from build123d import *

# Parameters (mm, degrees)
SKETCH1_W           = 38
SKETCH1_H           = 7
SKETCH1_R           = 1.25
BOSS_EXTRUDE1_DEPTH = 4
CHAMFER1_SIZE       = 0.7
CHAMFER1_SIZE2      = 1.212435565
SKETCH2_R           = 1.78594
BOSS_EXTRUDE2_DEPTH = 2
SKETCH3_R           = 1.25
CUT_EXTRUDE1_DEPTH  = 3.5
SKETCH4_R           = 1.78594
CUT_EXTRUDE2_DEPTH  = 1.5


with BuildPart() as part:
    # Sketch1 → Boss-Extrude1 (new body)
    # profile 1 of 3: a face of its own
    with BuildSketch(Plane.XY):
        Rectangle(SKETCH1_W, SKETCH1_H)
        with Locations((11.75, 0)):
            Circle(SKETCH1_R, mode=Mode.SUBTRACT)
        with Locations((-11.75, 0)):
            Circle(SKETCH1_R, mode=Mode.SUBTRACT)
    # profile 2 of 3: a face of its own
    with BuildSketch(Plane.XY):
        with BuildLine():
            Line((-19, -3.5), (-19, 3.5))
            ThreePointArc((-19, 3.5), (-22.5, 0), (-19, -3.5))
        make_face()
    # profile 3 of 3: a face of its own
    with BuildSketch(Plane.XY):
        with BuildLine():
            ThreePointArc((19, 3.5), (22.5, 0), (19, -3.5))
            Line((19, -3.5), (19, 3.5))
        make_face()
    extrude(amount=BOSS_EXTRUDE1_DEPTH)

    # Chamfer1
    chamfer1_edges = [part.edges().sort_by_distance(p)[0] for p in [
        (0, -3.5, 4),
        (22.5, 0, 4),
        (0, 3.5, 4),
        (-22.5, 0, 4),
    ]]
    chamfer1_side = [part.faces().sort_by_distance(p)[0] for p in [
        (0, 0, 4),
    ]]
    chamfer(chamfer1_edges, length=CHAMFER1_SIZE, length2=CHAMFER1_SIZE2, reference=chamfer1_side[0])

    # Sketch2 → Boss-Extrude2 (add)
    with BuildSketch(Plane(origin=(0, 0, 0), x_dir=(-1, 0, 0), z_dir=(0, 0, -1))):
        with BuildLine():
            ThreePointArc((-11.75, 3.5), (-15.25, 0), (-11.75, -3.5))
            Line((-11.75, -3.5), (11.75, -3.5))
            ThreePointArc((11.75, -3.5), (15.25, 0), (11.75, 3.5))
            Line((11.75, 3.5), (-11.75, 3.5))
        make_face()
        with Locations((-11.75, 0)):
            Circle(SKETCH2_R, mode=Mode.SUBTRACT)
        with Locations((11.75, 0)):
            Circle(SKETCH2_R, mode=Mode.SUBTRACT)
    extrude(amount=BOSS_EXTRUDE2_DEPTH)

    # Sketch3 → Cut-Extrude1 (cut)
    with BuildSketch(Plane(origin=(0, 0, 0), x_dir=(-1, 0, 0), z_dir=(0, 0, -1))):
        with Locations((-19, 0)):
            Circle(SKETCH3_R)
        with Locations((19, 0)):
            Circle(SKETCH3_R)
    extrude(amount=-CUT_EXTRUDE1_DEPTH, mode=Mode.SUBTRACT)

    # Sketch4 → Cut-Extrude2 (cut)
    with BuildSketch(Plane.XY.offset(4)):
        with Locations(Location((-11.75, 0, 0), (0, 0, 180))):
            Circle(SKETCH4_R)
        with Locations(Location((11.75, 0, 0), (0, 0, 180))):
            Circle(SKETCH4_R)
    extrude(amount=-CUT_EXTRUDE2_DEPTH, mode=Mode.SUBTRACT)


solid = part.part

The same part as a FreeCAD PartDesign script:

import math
import FreeCAD as App
import Part
import Sketcher
Q = App.Units.Quantity


def edges_at(feature, points):
    """Names of the edges that pass closest to the given points."""
    edges = feature.Shape.Edges
    near = lambda p: min(range(len(edges)), key=lambda i: edges[i].distToShape(Part.Vertex(*p))[0])
    return sorted({f"Edge{near(p) + 1}" for p in points})

doc = App.newDocument("Part")
body = doc.addObject("PartDesign::Body", "Body")

# Sketch on XY plane
sketch1 = body.newObject("Sketcher::SketchObject", "Sketch")
sketch1.AttachmentSupport = (doc.getObject("XY_Plane"), [""])
sketch1.MapMode = "FlatFace"
sketch1.addGeometry([
    Part.LineSegment(App.Vector(-19, -3.5, 0), App.Vector(19, -3.5, 0)),  # 0
    Part.ArcOfCircle(Part.Circle(App.Vector(19, 0, 0), App.Vector(0, 0, 1), 3.5), math.radians(-90), math.radians(90)),  # 1
    Part.LineSegment(App.Vector(19, 3.5, 0), App.Vector(-19, 3.5, 0)),  # 2
    Part.ArcOfCircle(Part.Circle(App.Vector(-19, 0, 0), App.Vector(0, 0, 1), 3.5), math.radians(90), math.radians(270)),  # 3
    Part.Circle(App.Vector(-11.8, 0, 0), App.Vector(0, 0, 1), 1.2),  # 4
    Part.Circle(App.Vector(11.8, 0, 0), App.Vector(0, 0, 1), 1.2),  # 5
], False)
sketch1.addConstraint([
    Sketcher.Constraint("Tangent", 0, 2, 1, 1),
    Sketcher.Constraint("Tangent", 1, 2, 2, 1),
    Sketcher.Constraint("Tangent", 2, 2, 3, 1),
    Sketcher.Constraint("Tangent", 3, 2, 0, 1),
    Sketcher.Constraint("Horizontal", 0),
    Sketcher.Constraint("Horizontal", 2),
    Sketcher.Constraint("Equal", 4, 5),
    Sketcher.Constraint("Symmetric", 1, 3, 3, 3, -1, 1),
    Sketcher.Constraint("Symmetric", 4, 3, 5, 3, -1, 1),
    Sketcher.Constraint("PointOnObject", 4, 3, -1),
    Sketcher.Constraint("Diameter", 4, Q("2.5 mm")),
    Sketcher.Constraint("Radius", 1, Q("3.5 mm")),
    Sketcher.Constraint("DistanceX", 0, 1, 0, 2, Q("38 mm")),
    Sketcher.Constraint("DistanceX", 4, 3, 5, 3, Q("23.5 mm")),
])
pad1 = body.newObject("PartDesign::Pad", "Pad")
pad1.Profile = sketch1
pad1.Length = 4
doc.recompute()

chamfer = body.newObject("PartDesign::Chamfer", "Chamfer")
chamfer.Base = (pad1, edges_at(pad1, [
    (0, -3.5, 4),
    (22.5, 0, 4),
    (0, 3.5, 4),
    (-22.5, 0, 4),
]))
chamfer.ChamferType = "Two distances"
chamfer.Size = 0.7
chamfer.Size2 = 1.212436
chamfer.FlipDirection = True

# Sketch on XY plane
sketch2 = body.newObject("Sketcher::SketchObject", "Sketch001")
sketch2.AttachmentSupport = (doc.getObject("XY_Plane"), [""])
sketch2.MapMode = "FlatFace"
sketch2.addGeometry([
    Part.ArcOfCircle(Part.Circle(App.Vector(11.8, 0, 0), App.Vector(0, 0, 1), 3.5), math.radians(-90), math.radians(90)),  # 0
    Part.LineSegment(App.Vector(11.8, -3.5, 0), App.Vector(-11.8, -3.5, 0)),  # 1
    Part.ArcOfCircle(Part.Circle(App.Vector(-11.8, 0, 0), App.Vector(0, 0, 1), 3.5), math.radians(90), math.radians(270)),  # 2
    Part.LineSegment(App.Vector(-11.8, 3.5, 0), App.Vector(11.8, 3.5, 0)),  # 3
    Part.Circle(App.Vector(11.8, 0, 0), App.Vector(0, 0, 1), 1.8),  # 4
    Part.Circle(App.Vector(-11.8, 0, 0), App.Vector(0, 0, 1), 1.8),  # 5
], False)
sketch2.addConstraint([
    Sketcher.Constraint("Tangent", 0, 1, 1, 1),
    Sketcher.Constraint("Tangent", 1, 2, 2, 2),
    Sketcher.Constraint("Tangent", 2, 1, 3, 1),
    Sketcher.Constraint("Tangent", 3, 2, 0, 2),
    Sketcher.Constraint("Horizontal", 1),
    Sketcher.Constraint("Horizontal", 3),
    Sketcher.Constraint("Coincident", 4, 3, 0, 3),
    Sketcher.Constraint("Coincident", 5, 3, 2, 3),
    Sketcher.Constraint("Equal", 4, 5),
    Sketcher.Constraint("Symmetric", 0, 3, 2, 3, -1, 1),
    Sketcher.Constraint("Radius", 0, Q("3.5 mm")),
    Sketcher.Constraint("DistanceX", 1, 2, 1, 1, Q("23.5 mm")),
    Sketcher.Constraint("Diameter", 4, Q("3.57188 mm")),
])
pad2 = body.newObject("PartDesign::Pad", "Pad001")
pad2.Profile = sketch2
pad2.Length = 2
pad2.Reversed = True

# Sketch on XY plane
sketch3 = body.newObject("Sketcher::SketchObject", "Sketch002")
sketch3.AttachmentSupport = (doc.getObject("XY_Plane"), [""])
sketch3.MapMode = "FlatFace"
sketch3.addGeometry([
    Part.Circle(App.Vector(19, 0, 0), App.Vector(0, 0, 1), 1.2),
    Part.Circle(App.Vector(-19, 0, 0), App.Vector(0, 0, 1), 1.2),
], False)
sketch3.addConstraint([
    Sketcher.Constraint("Equal", 0, 1),
    Sketcher.Constraint("Symmetric", 0, 3, 1, 3, -1, 1),
    Sketcher.Constraint("PointOnObject", 0, 3, -1),
    Sketcher.Constraint("Diameter", 0, Q("2.5 mm")),
    Sketcher.Constraint("DistanceX", -1, 1, 0, 3, Q("19 mm")),
])
pocket1 = body.newObject("PartDesign::Pocket", "Pocket")
pocket1.Profile = sketch3
pocket1.Length = 3.5
pocket1.Reversed = True

# Sketch on XY plane
sketch4 = body.newObject("Sketcher::SketchObject", "Sketch003")
sketch4.AttachmentSupport = (doc.getObject("XY_Plane"), [""])
sketch4.MapMode = "FlatFace"
sketch4.AttachmentOffset = App.Placement(App.Vector(0, 0, 4), App.Rotation())
sketch4.addGeometry([
    Part.Circle(App.Vector(-11.8, 0, 0), App.Vector(0, 0, 1), 1.8),
    Part.Circle(App.Vector(11.8, 0, 0), App.Vector(0, 0, 1), 1.8),
], False)
sketch4.addConstraint([
    Sketcher.Constraint("Equal", 0, 1),
    Sketcher.Constraint("Symmetric", 0, 3, 1, 3, -1, 1),
    Sketcher.Constraint("PointOnObject", 0, 3, -1),
    Sketcher.Constraint("DistanceX", 0, 3, 1, 3, Q("23.5 mm")),
    Sketcher.Constraint("Diameter", 0, Q("3.57188 mm")),
])
pocket2 = body.newObject("PartDesign::Pocket", "Pocket001")
pocket2.Profile = sketch4
pocket2.Length = 1.5

doc.recompute()
